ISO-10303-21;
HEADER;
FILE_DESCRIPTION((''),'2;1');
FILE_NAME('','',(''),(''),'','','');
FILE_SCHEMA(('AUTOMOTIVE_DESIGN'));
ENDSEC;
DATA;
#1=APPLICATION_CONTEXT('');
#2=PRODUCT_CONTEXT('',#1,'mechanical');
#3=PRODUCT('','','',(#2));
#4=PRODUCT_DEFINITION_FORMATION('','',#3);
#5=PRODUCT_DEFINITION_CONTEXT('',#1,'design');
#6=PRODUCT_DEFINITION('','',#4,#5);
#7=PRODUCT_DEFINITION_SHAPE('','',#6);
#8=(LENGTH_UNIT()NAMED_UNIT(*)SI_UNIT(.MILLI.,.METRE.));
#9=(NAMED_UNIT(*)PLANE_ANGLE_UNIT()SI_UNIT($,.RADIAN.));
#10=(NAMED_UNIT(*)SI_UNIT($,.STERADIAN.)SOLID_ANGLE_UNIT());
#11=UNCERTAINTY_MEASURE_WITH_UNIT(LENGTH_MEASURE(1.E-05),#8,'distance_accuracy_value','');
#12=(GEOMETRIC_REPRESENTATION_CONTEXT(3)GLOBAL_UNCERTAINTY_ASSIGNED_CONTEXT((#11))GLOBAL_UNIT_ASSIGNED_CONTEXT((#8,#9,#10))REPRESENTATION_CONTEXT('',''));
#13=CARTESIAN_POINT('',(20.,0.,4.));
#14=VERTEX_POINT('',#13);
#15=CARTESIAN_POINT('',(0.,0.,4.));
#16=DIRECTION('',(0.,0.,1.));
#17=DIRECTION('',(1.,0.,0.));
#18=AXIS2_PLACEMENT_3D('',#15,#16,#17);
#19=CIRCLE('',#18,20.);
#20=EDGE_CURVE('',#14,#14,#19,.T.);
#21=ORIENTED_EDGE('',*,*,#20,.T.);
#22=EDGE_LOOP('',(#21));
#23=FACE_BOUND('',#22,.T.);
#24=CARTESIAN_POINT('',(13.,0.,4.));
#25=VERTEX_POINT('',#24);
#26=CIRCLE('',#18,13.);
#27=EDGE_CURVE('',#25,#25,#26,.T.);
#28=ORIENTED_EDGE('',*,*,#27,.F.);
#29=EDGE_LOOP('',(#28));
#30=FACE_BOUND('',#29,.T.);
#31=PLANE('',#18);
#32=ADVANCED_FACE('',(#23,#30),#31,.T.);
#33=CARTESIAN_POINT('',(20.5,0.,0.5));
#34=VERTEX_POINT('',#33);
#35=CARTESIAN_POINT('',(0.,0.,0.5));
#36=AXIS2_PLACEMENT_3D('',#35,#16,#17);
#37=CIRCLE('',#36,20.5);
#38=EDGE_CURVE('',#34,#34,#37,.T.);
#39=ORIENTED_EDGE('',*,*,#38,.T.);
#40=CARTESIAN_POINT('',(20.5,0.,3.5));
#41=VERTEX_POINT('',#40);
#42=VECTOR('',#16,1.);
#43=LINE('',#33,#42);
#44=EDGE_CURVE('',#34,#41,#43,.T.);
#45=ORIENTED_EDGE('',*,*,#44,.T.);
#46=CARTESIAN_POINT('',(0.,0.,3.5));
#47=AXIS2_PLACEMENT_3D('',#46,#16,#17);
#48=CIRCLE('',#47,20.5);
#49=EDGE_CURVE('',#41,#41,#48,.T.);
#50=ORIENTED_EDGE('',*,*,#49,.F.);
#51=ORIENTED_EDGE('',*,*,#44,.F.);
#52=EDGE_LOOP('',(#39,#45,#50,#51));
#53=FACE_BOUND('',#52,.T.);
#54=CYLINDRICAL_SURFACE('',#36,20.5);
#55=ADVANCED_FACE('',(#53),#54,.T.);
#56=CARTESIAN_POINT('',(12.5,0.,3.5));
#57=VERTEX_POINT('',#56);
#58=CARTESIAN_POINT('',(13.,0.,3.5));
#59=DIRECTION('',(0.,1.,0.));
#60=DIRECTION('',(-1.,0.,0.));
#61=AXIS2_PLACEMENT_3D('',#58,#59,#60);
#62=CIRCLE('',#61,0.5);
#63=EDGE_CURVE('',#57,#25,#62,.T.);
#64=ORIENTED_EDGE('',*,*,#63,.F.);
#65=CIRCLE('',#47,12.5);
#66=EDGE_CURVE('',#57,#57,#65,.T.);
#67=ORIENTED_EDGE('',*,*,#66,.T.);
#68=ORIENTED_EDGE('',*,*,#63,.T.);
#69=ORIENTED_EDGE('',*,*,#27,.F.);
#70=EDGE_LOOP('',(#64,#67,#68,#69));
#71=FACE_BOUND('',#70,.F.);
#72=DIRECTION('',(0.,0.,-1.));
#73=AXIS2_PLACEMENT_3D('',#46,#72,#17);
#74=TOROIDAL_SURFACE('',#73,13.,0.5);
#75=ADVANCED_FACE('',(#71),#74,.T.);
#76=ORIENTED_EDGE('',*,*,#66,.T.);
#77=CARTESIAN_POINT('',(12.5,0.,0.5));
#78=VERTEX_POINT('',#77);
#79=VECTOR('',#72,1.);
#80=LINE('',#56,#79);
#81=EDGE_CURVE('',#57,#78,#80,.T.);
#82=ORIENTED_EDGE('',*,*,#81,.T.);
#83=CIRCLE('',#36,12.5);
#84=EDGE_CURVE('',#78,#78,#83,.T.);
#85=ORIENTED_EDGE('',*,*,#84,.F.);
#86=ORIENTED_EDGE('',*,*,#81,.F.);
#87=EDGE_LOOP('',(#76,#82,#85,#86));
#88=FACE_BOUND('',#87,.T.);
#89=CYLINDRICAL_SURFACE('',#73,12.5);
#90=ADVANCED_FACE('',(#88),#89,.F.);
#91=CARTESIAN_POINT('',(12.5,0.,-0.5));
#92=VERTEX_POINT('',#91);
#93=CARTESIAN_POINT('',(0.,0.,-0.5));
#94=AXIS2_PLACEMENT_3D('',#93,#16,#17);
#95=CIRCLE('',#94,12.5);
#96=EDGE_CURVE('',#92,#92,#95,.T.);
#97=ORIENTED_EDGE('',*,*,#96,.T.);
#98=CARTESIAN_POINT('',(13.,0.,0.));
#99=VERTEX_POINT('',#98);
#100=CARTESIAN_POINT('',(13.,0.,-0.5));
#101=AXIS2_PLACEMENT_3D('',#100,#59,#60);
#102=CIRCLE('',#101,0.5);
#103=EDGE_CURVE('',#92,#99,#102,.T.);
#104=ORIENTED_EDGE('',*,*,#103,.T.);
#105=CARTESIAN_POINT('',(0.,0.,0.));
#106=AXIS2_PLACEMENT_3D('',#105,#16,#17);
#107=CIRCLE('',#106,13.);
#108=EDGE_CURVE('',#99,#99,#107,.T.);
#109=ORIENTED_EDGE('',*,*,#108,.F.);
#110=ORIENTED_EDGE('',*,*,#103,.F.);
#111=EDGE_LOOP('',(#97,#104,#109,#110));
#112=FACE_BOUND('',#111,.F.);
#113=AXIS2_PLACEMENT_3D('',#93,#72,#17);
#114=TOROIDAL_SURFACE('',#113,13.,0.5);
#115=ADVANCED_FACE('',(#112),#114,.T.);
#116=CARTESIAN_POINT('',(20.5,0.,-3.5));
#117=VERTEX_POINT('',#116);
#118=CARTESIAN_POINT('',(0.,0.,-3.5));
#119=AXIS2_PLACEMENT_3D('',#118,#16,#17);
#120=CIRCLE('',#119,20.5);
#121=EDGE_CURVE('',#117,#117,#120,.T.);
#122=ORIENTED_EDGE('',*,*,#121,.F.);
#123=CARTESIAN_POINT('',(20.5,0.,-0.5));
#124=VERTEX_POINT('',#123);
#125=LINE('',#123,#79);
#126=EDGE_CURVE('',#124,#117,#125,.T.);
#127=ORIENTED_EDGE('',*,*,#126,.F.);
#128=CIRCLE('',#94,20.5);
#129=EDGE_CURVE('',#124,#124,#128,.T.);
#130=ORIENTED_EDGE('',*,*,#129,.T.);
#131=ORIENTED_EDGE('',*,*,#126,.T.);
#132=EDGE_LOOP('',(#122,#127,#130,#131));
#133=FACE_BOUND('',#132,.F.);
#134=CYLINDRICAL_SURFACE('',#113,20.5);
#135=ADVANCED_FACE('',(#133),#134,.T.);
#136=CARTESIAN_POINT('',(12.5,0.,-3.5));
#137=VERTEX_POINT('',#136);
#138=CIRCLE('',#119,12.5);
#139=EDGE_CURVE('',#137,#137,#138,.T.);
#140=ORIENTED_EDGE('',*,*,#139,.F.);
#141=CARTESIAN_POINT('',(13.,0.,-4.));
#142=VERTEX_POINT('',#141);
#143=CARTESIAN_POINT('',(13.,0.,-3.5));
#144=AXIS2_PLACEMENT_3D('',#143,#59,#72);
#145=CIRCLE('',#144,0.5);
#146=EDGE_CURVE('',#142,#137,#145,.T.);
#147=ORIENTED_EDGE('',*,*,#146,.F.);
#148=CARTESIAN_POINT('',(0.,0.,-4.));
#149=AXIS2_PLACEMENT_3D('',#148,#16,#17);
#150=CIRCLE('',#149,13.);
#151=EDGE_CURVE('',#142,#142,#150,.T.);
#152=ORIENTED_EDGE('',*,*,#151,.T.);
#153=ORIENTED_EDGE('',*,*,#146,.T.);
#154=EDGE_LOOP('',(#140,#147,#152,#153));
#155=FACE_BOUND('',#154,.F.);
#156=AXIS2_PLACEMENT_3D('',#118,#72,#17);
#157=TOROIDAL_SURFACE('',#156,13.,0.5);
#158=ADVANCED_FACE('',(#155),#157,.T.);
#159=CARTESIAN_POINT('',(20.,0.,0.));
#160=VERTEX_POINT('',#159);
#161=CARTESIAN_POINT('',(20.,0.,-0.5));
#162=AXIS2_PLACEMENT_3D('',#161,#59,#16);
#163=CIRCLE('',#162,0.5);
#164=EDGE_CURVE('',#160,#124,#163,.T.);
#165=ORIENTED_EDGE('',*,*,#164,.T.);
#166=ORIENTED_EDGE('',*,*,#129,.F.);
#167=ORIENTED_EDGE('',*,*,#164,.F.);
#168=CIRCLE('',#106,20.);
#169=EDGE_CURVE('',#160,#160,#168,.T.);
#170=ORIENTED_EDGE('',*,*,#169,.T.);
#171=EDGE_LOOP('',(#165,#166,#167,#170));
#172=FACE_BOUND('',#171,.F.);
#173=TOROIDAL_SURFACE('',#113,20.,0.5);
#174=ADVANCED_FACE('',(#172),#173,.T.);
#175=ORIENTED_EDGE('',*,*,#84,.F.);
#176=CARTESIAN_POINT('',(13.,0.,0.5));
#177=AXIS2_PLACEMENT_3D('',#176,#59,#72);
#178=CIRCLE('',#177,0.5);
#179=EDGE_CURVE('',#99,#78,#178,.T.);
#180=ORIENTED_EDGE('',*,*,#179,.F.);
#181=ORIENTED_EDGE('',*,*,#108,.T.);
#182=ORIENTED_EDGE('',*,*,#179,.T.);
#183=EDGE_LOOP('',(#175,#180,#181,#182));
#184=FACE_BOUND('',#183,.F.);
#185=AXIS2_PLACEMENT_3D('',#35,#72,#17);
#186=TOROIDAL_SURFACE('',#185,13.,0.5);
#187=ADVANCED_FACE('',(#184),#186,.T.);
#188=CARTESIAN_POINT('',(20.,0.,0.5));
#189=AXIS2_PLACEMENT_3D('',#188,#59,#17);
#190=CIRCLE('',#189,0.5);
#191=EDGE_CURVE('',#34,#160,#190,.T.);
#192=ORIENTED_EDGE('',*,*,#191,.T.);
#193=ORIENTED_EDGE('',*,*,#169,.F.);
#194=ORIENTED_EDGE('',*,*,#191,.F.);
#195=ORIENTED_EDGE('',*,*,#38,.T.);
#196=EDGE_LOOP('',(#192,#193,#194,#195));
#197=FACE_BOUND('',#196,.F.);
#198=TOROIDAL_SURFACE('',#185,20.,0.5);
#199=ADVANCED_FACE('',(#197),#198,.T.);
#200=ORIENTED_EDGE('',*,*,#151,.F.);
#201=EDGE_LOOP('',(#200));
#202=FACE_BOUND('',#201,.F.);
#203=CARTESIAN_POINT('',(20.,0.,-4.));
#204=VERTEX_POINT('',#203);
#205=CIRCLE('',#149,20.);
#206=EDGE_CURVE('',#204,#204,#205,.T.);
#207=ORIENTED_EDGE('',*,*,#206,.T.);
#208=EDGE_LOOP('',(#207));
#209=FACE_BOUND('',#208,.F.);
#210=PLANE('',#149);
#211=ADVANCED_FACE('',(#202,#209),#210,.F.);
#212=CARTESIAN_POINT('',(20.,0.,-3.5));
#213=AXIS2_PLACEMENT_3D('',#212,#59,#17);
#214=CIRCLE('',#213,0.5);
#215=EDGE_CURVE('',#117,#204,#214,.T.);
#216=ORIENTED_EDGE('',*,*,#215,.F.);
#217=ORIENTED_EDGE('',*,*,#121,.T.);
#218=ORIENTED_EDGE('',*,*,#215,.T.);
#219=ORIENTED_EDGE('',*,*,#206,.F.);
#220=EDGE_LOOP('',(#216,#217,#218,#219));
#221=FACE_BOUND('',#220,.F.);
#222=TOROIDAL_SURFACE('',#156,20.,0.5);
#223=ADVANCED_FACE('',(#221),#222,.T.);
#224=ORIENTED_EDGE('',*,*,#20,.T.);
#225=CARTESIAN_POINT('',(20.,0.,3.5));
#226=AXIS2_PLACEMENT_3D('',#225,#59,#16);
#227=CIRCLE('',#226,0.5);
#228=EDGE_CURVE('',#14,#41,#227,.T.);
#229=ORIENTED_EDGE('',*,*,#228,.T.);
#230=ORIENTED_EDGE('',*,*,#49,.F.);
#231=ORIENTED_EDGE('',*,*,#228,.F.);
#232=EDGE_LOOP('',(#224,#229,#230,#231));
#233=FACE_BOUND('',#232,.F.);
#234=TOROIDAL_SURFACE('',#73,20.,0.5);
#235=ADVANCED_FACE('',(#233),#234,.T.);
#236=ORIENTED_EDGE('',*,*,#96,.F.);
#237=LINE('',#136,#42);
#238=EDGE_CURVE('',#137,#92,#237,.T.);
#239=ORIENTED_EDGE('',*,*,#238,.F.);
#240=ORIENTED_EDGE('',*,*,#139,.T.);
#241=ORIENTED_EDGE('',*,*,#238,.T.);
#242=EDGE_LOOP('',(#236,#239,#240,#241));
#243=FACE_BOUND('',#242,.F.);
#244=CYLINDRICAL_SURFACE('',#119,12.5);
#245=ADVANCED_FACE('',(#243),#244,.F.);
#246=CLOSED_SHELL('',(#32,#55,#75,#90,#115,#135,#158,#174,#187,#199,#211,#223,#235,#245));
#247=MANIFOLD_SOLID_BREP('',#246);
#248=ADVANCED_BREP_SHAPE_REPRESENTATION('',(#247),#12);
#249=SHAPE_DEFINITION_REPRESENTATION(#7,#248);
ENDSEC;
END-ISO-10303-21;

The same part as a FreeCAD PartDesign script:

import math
import FreeCAD as App
import Part
import Sketcher

doc = App.newDocument("Part")
body = doc.addObject("PartDesign::Body", "Body")

# Sketch on XZ plane
sketch1 = body.newObject("Sketcher::SketchObject", "Sketch")
sketch1.AttachmentSupport = (doc.getObject("XZ_Plane"), [""])
sketch1.MapMode = "FlatFace"
sketch1.addGeometry([
    Part.LineSegment(App.Vector(13, 4, 0), App.Vector(20, 4, 0)),  # 0
    Part.ArcOfCircle(Part.Circle(App.Vector(20, 3.5, 0), App.Vector(0, 0, 1), 0.5), math.radians(0), math.radians(90)),  # 1
    Part.LineSegment(App.Vector(20.5, 3.5, 0), App.Vector(20.5, 0.5, 0)),  # 2
    Part.ArcOfCircle(Part.Circle(App.Vector(20, 0.5, 0), App.Vector(0, 0, 1), 0.5), math.radians(-90), math.radians(0)),  # 3
    Part.ArcOfCircle(Part.Circle(App.Vector(20, -0.5, 0), App.Vector(0, 0, 1), 0.5), math.radians(0), math.radians(90)),  # 4
    Part.LineSegment(App.Vector(20.5, -0.5, 0), App.Vector(20.5, -3.5, 0)),  # 5
    Part.ArcOfCircle(Part.Circle(App.Vector(20, -3.5, 0), App.Vector(0, 0, 1), 0.5), math.radians(-90), math.radians(0)),  # 6
    Part.LineSegment(App.Vector(20, -4, 0), App.Vector(13, -4, 0)),  # 7
    Part.ArcOfCircle(Part.Circle(App.Vector(13, -3.5, 0), App.Vector(0, 0, 1), 0.5), math.radians(180), math.radians(270)),  # 8
    Part.LineSegment(App.Vector(12.5, -3.5, 0), App.Vector(12.5, -0.5, 0)),  # 9
    Part.ArcOfCircle(Part.Circle(App.Vector(13, -0.5, 0), App.Vector(0, 0, 1), 0.5), math.radians(90), math.radians(180)),  # 10
    Part.ArcOfCircle(Part.Circle(App.Vector(13, 0.5, 0), App.Vector(0, 0, 1), 0.5), math.radians(180), math.radians(270)),  # 11
    Part.LineSegment(App.Vector(12.5, 0.5, 0), App.Vector(12.5, 3.5, 0)),  # 12
    Part.ArcOfCircle(Part.Circle(App.Vector(13, 3.5, 0), App.Vector(0, 0, 1), 0.5), math.radians(90), math.radians(180)),  # 13
], False)
sketch1.addConstraint([
    Sketcher.Constraint("Tangent", 0, 2, 1, 2),
    Sketcher.Constraint("Tangent", 1, 1, 2, 1),
    Sketcher.Constraint("Tangent", 2, 2, 3, 2),
    Sketcher.Constraint("Tangent", 3, 1, 4, 2),
    Sketcher.Constraint("Tangent", 4, 1, 5, 1),
    Sketcher.Constraint("Tangent", 5, 2, 6, 2),
    Sketcher.Constraint("Tangent", 6, 1, 7, 1),
    Sketcher.Constraint("Tangent", 7, 2, 8, 2),
    Sketcher.Constraint("Tangent", 8, 1, 9, 1),
    Sketcher.Constraint("Tangent", 9, 2, 10, 2),
    Sketcher.Constraint("Tangent", 10, 1, 11, 2),
    Sketcher.Constraint("Tangent", 11, 1, 12, 1),
    Sketcher.Constraint("Tangent", 12, 2, 13, 2),
    Sketcher.Constraint("Tangent", 13, 1, 0, 1),
    Sketcher.Constraint("Horizontal", 0),
    Sketcher.Constraint("Vertical", 2),
    Sketcher.Constraint("Vertical", 5),
    Sketcher.Constraint("Horizontal", 7),
    Sketcher.Constraint("Vertical", 9),
    Sketcher.Constraint("Vertical", 12),
    Sketcher.Constraint("Equal", 1, 3),
    Sketcher.Constraint("Equal", 3, 4),
    Sketcher.Constraint("Equal", 4, 6),
    Sketcher.Constraint("Equal", 6, 8),
    Sketcher.Constraint("Equal", 8, 10),
    Sketcher.Constraint("Equal", 10, 11),
    Sketcher.Constraint("Equal", 11, 13),
    Sketcher.Constraint("Symmetric", 3, 3, 4, 3, -1),
    Sketcher.Constraint("Symmetric", 10, 3, 11, 3, -1),
    Sketcher.Constraint("Equal", 2, 5),
    Sketcher.Constraint("Radius", 1, 0.5),
    Sketcher.Constraint("DistanceX", 0, 1, 0, 2, 7.0),
    Sketcher.Constraint("DistanceY", 2, 2, 2, 1, 3.0),
    Sketcher.Constraint("DistanceX", -1, 1, 1, 3, 20.0),
])
revolution = body.newObject("PartDesign::Revolution", "Revolution")
revolution.Profile = sketch1
revolution.ReferenceAxis = (sketch1, ["V_Axis"])
revolution.Angle = 360

doc.recompute()
